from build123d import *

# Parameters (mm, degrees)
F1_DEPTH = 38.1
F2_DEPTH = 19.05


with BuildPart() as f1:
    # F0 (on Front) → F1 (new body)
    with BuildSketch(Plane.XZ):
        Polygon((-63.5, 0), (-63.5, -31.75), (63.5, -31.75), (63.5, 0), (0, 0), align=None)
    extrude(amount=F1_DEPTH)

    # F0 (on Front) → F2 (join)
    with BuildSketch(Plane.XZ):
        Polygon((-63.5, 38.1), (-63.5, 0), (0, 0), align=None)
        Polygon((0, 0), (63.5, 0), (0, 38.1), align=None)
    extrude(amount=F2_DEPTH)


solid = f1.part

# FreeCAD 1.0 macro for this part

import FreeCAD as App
import Part
import Sketcher

V = App.Vector
Q = App.Units.Quantity


def add_polygon(sketch, points):
    """Adds a closed chain of lines whose ends are joined by coincident constraints."""
    first, n = sketch.GeometryCount, len(points)
    for a, b in zip(points, points[1:] + points[:1]):
        sketch.addGeometry(Part.LineSegment(App.Vector(*a, 0), App.Vector(*b, 0)), False)
    for i in range(n):
        sketch.addConstraint(Sketcher.Constraint("Coincident", first + i, 2, first + (i + 1) % n, 1))

doc = App.newDocument("Part")
body = doc.addObject("PartDesign::Body", "Body")

# Sketch on XZ plane
sketch1 = doc.addObject("Sketcher::SketchObject", "Sketch")
body.addObject(sketch1)
sketch1.AttachmentSupport = (doc.XZ_Plane, [""])
sketch1.MapMode = "FlatFace"
add_polygon(sketch1, [(-64, 0), (-64, -32), (64, -32), (64, 0)])  # lines 0-3
sketch1.addConstraint([
    Sketcher.Constraint("Vertical", 0),
    Sketcher.Constraint("Horizontal", 1),
    Sketcher.Constraint("Vertical", 2),
    Sketcher.Constraint("Horizontal", 3),
    Sketcher.Constraint("Symmetric", 2, 2, 3, 2, -1, 1),
    Sketcher.Constraint("DistanceX", 1, 1, 1, 2, Q("5 in")),
    Sketcher.Constraint("DistanceY", 0, 2, 0, 1, Q("1.25 in")),
])
pad1 = doc.addObject("PartDesign::Pad", "Pad")
body.addObject(pad1)
pad1.Profile = sketch1
pad1.Length = Q("1.5 in")

# Sketch on XZ plane
sketch2 = doc.addObject("Sketcher::SketchObject", "Sketch001")
body.addObject(sketch2)
sketch2.AttachmentSupport = (doc.XZ_Plane, [""])
sketch2.MapMode = "FlatFace"
add_polygon(sketch2, [(-64, 38), (-64, 0), (0, 0)])  # lines 0-2
add_polygon(sketch2, [(0, 0), (64, 0), (0, 38)])  # lines 3-5
sketch2.addConstraint([
    Sketcher.Constraint("Vertical", 0),
    Sketcher.Constraint("Horizontal", 1),
    Sketcher.Constraint("Horizontal", 3),
    Sketcher.Constraint("Vertical", 5),
    Sketcher.Constraint("Coincident", 1, 2, -1, 1),
    Sketcher.Constraint("Coincident", 5, 2, -1, 1),
    Sketcher.Constraint("Parallel", 2, 4),
    Sketcher.Constraint("Horizontal", 2, 2, 4, 2),
    Sketcher.Constraint("DistanceX", 1, 1, 1, 2, Q("2.5 in")),
    Sketcher.Constraint("DistanceY", 0, 2, 0, 1, Q("1.5 in")),
])
pad2 = doc.addObject("PartDesign::Pad", "Pad001")
body.addObject(pad2)
pad2.Profile = sketch2
pad2.Length = Q("0.75 in")

doc.recompute()
